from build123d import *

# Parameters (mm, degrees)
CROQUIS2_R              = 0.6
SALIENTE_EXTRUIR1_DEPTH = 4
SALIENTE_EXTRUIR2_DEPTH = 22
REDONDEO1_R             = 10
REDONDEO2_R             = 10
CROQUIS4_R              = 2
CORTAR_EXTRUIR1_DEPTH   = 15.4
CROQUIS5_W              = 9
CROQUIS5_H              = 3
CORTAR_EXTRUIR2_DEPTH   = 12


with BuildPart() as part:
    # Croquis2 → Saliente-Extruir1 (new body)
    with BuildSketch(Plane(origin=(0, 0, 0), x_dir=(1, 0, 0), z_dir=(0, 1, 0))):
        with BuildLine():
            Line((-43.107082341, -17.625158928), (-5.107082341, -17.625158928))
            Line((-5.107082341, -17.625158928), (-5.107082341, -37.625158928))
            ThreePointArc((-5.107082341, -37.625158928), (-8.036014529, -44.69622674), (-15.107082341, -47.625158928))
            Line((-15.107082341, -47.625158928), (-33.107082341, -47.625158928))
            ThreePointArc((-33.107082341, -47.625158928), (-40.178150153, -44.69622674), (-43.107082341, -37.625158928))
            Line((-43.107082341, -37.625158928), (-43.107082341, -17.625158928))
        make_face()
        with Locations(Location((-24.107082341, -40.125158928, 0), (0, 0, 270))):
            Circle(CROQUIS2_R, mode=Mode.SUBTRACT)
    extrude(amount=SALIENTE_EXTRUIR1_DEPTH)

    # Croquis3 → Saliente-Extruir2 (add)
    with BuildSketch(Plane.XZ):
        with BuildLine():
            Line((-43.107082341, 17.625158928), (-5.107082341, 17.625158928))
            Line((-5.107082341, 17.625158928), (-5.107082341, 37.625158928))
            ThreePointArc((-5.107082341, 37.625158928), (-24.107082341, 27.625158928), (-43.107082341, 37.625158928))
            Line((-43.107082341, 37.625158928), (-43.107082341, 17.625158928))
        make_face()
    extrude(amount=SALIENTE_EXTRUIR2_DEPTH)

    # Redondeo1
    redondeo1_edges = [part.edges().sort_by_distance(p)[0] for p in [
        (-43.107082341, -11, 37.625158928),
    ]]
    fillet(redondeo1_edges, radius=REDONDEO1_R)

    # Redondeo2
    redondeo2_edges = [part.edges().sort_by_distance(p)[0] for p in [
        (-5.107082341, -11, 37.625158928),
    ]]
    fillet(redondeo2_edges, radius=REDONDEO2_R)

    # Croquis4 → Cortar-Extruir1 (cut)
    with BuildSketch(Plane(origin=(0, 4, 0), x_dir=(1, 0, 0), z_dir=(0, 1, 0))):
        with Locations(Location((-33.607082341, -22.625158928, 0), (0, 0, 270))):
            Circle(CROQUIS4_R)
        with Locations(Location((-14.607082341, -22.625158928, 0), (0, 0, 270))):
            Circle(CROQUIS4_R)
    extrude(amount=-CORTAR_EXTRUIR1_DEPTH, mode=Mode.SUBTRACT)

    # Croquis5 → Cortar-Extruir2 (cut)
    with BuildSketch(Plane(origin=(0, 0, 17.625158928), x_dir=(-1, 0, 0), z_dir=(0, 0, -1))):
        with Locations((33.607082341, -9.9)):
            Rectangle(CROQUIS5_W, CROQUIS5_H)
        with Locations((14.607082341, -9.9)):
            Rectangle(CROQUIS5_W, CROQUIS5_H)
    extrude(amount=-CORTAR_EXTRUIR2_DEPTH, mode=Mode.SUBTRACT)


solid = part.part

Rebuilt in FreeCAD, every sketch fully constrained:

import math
import FreeCAD as App
import Part
import Sketcher
Q = App.Units.Quantity


def edges_at(feature, points):
    """Names of the edges that pass closest to the given points."""
    edges = feature.Shape.Edges
    near = lambda p: min(range(len(edges)), key=lambda i: edges[i].distToShape(Part.Vertex(*p))[0])
    return sorted({f"Edge{near(p) + 1}" for p in points})


def add_polygon(sketch, points):
    """Adds a closed chain of lines whose ends are joined by coincident constraints."""
    first, n = sketch.GeometryCount, len(points)
    for a, b in zip(points, points[1:] + points[:1]):
        sketch.addGeometry(Part.LineSegment(App.Vector(*a, 0), App.Vector(*b, 0)), False)
    for i in range(n):
        sketch.addConstraint(Sketcher.Constraint("Coincident", first + i, 2, first + (i + 1) % n, 1))

doc = App.newDocument("Part")
body = doc.addObject("PartDesign::Body", "Body")

# Sketch on XZ plane
sketch1 = body.newObject("Sketcher::SketchObject", "Sketch")
sketch1.AttachmentSupport = (doc.getObject("XZ_Plane"), [""])
sketch1.MapMode = "FlatFace"
sketch1.addGeometry(Part.LineSegment(App.Vector(-5.1, 17.6, 0), App.Vector(-43.1, 17.6, 0)), False)
sketch1.addGeometry(Part.LineSegment(App.Vector(-43.1, 17.6, 0), App.Vector(-43.1, 37.6, 0)), False)
sketch1.addGeometry(Part.ArcOfCircle(Part.Circle(App.Vector(-33.1, 37.6, 0), App.Vector(0, 0, 1), 10), math.radians(90), math.radians(180)), False)
sketch1.addGeometry(Part.LineSegment(App.Vector(-33.1, 47.6, 0), App.Vector(-15.1, 47.6, 0)), False)
sketch1.addGeometry(Part.ArcOfCircle(Part.Circle(App.Vector(-15.1, 37.6, 0), App.Vector(0, 0, 1), 10), math.radians(0), math.radians(90)), False)
sketch1.addGeometry(Part.LineSegment(App.Vector(-5.1, 37.6, 0), App.Vector(-5.1, 17.6, 0)), False)
sketch1.addGeometry(Part.Circle(App.Vector(-24.1, 40.1, 0), App.Vector(0, 0, 1), 0.6), False)
sketch1.addConstraint(Sketcher.Constraint("Coincident", 0, 2, 1, 1))
sketch1.addConstraint(Sketcher.Constraint("Tangent", 1, 2, 2, 2))
sketch1.addConstraint(Sketcher.Constraint("Tangent", 2, 1, 3, 1))
sketch1.addConstraint(Sketcher.Constraint("Tangent", 3, 2, 4, 2))
sketch1.addConstraint(Sketcher.Constraint("Tangent", 4, 1, 5, 1))
sketch1.addConstraint(Sketcher.Constraint("Coincident", 5, 2, 0, 1))
sketch1.addConstraint(Sketcher.Constraint("Horizontal", 0))
sketch1.addConstraint(Sketcher.Constraint("Vertical", 1))
sketch1.addConstraint(Sketcher.Constraint("Horizontal", 3))
sketch1.addConstraint(Sketcher.Constraint("Vertical", 5))
sketch1.addConstraint(Sketcher.Constraint("Equal", 2, 4))
sketch1.addConstraint(Sketcher.Constraint("Radius", 2, Q("10 mm")))
sketch1.addConstraint(Sketcher.Constraint("Diameter", 6, Q("1.2 mm")))
sketch1.addConstraint(Sketcher.Constraint("DistanceX", 0, 2, 0, 1, Q("38 mm")))
sketch1.addConstraint(Sketcher.Constraint("DistanceY", 1, 1, 1, 2, Q("20 mm")))
sketch1.addConstraint(Sketcher.Constraint("DistanceX", 2, 3, 6, 3, Q("9 mm")))
sketch1.addConstraint(Sketcher.Constraint("DistanceY", 2, 3, 6, 3, Q("2.5 mm")))
sketch1.addConstraint(Sketcher.Constraint("DistanceY", -1, 1, 2, 3, Q("37.625159 mm")))
sketch1.addConstraint(Sketcher.Constraint("DistanceX", 2, 3, -1, 1, Q("33.107082 mm")))
pad1 = body.newObject("PartDesign::Pad", "Pad")
pad1.Profile = sketch1
pad1.Length = 4
pad1.Reversed = True

# Sketch on XZ plane
sketch2 = body.newObject("Sketcher::SketchObject", "Sketch001")
sketch2.AttachmentSupport = (doc.getObject("XZ_Plane"), [""])
sketch2.MapMode = "FlatFace"
sketch2.addGeometry(Part.LineSegment(App.Vector(-43, 18, 0), App.Vector(-5, 18, 0)), False)
sketch2.addGeometry(Part.LineSegment(App.Vector(-5, 18, 0), App.Vector(-5, 38, 0)), False)
sketch2.addGeometry(Part.ArcOfCircle(Part.Circle(App.Vector(-24, 51, 0), App.Vector(0, 0, 1), 23), math.radians(-146), math.radians(-34)), False)
sketch2.addGeometry(Part.LineSegment(App.Vector(-43, 38, 0), App.Vector(-43, 18, 0)), False)
sketch2.addConstraint(Sketcher.Constraint("Coincident", 0, 2, 1, 1))
sketch2.addConstraint(Sketcher.Constraint("Coincident", 1, 2, 2, 2))
sketch2.addConstraint(Sketcher.Constraint("Coincident", 2, 1, 3, 1))
sketch2.addConstraint(Sketcher.Constraint("Coincident", 3, 2, 0, 1))
sketch2.addConstraint(Sketcher.Constraint("Horizontal", 0))
sketch2.addConstraint(Sketcher.Constraint("Vertical", 1))
sketch2.addConstraint(Sketcher.Constraint("Vertical", 3))
sketch2.addConstraint(Sketcher.Constraint("Horizontal", 1, 2, 2, 1))
sketch2.addConstraint(Sketcher.Constraint("DistanceX", 0, 1, 0, 2, Q("38 mm")))
sketch2.addConstraint(Sketcher.Constraint("DistanceY", 1, 1, 1, 2, Q("20 mm")))
sketch2.addConstraint(Sketcher.Constraint("Radius", 2, Q("23.05 mm")))
sketch2.addConstraint(Sketcher.Constraint("DistanceY", -1, 1, 2, 3, Q("50.675159 mm")))
sketch2.addConstraint(Sketcher.Constraint("DistanceX", 2, 3, -1, 1, Q("24.107082 mm")))
pad2 = body.newObject("PartDesign::Pad", "Pad001")
pad2.Profile = sketch2
pad2.Length = 22
doc.recompute()

fillet = body.newObject("PartDesign::Fillet", "Fillet")
fillet.Base = (pad2, edges_at(pad2, [(-43.107, -11, 37.625)]))
fillet.Radius = 10
doc.recompute()

fillet2 = body.newObject("PartDesign::Fillet", "Fillet001")
fillet2.Base = (fillet, edges_at(fillet, [(-5.107, -11, 37.625)]))
fillet2.Radius = 10

# Sketch on XZ plane
sketch3 = body.newObject("Sketcher::SketchObject", "Sketch002")
sketch3.AttachmentSupport = (doc.getObject("XZ_Plane"), [""])
sketch3.MapMode = "FlatFace"
sketch3.AttachmentOffset = App.Placement(App.Vector(0, 0, -4), App.Rotation())
sketch3.addGeometry(Part.Circle(App.Vector(-33.6, 22.6, 0), App.Vector(0, 0, 1), 2), False)
sketch3.addGeometry(Part.Circle(App.Vector(-14.6, 22.6, 0), App.Vector(0, 0, 1), 2), False)
sketch3.addConstraint(Sketcher.Constraint("Equal", 0, 1))
sketch3.addConstraint(Sketcher.Constraint("Horizontal", 0, 3, 1, 3))
sketch3.addConstraint(Sketcher.Constraint("Diameter", 0, Q("4 mm")))
sketch3.addConstraint(Sketcher.Constraint("DistanceX", 0, 3, 1, 3, Q("19 mm")))
sketch3.addConstraint(Sketcher.Constraint("DistanceY", -1, 1, 0, 3, Q("22.625159 mm")))
sketch3.addConstraint(Sketcher.Constraint("DistanceX", 0, 3, -1, 1, Q("33.607082 mm")))
pocket1 = body.newObject("PartDesign::Pocket", "Pocket")
pocket1.Profile = sketch3
pocket1.Length = 15.4
pocket1.Reversed = True

# Sketch on XY plane
sketch4 = body.newObject("Sketcher::SketchObject", "Sketch003")
sketch4.AttachmentSupport = (doc.getObject("XY_Plane"), [""])
sketch4.MapMode = "FlatFace"
sketch4.AttachmentOffset = App.Placement(App.Vector(0, 0, 17.625159), App.Rotation())
add_polygon(sketch4, [(-29.1, -8.4), (-29.1, -11.4), (-38.1, -11.4), (-38.1, -8.4)])  # lines 0-3
add_polygon(sketch4, [(-10.1, -8.4), (-10.1, -11.4), (-19.1, -11.4), (-19.1, -8.4)])  # lines 4-7
sketch4.addConstraint(Sketcher.Constraint("Vertical", 0))
sketch4.addConstraint(Sketcher.Constraint("Horizontal", 1))
sketch4.addConstraint(Sketcher.Constraint("Vertical", 2))
sketch4.addConstraint(Sketcher.Constraint("Horizontal", 3))
sketch4.addConstraint(Sketcher.Constraint("Vertical", 4))
sketch4.addConstraint(Sketcher.Constraint("Horizontal", 5))
sketch4.addConstraint(Sketcher.Constraint("Vertical", 6))
sketch4.addConstraint(Sketcher.Constraint("Horizontal", 7))
sketch4.addConstraint(Sketcher.Constraint("Horizontal", 1, 2, 4, 2))
sketch4.addConstraint(Sketcher.Constraint("Horizontal", 3, 2, 6, 2))
sketch4.addConstraint(Sketcher.Constraint("Equal", 3, 5))
sketch4.addConstraint(Sketcher.Constraint("DistanceX", 1, 2, 1, 1, Q("9 mm")))
sketch4.addConstraint(Sketcher.Constraint("DistanceY", 0, 2, 0, 1, Q("3 mm")))
sketch4.addConstraint(Sketcher.Constraint("DistanceX", 0, 2, 4, 2, Q("19 mm")))
sketch4.addConstraint(Sketcher.Constraint("DistanceY", 0, 2, -1, 1, Q("11.4 mm")))
sketch4.addConstraint(Sketcher.Constraint("DistanceX", 0, 2, -1, 1, Q("29.107082 mm")))
pocket2 = body.newObject("PartDesign::Pocket", "Pocket001")
pocket2.Profile = sketch4
pocket2.Length = 12
pocket2.Reversed = True

doc.recompute()
